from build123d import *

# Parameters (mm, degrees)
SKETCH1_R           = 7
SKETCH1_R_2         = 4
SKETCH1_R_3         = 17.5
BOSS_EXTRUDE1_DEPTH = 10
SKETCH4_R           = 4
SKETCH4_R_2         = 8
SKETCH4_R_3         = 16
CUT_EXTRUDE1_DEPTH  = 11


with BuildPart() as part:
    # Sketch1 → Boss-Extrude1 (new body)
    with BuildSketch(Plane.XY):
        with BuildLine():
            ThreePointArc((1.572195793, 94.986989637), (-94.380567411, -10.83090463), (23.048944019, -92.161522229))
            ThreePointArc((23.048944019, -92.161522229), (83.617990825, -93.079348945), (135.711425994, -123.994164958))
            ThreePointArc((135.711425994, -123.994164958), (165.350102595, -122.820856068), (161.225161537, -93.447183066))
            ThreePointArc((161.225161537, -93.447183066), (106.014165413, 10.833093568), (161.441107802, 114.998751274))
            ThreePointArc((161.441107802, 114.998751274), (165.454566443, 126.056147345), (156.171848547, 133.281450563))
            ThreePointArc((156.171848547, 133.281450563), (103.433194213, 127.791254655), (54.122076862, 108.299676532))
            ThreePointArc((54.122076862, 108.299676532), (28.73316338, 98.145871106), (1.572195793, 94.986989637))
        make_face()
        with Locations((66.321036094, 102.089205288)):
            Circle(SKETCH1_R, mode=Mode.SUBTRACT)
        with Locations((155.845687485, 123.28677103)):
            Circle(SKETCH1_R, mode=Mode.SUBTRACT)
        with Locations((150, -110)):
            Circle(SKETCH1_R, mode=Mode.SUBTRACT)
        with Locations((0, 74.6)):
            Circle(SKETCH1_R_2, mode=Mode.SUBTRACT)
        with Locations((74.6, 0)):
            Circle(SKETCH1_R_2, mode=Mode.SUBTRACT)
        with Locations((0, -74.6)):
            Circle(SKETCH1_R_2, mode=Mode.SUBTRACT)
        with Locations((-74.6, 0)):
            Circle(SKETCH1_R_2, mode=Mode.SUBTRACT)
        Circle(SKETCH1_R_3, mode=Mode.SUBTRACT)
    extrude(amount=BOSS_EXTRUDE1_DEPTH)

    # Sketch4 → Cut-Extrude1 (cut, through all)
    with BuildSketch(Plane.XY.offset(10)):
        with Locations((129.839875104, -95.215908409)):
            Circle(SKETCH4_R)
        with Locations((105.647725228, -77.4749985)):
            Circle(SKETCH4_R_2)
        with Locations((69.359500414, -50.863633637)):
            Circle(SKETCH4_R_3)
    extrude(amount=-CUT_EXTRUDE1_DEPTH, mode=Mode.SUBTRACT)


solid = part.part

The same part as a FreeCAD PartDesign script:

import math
import FreeCAD as App
import Part
import Sketcher

V = App.Vector

doc = App.newDocument("Part")
body = doc.addObject("PartDesign::Body", "Body")

# Sketch on XY plane
sketch1 = body.newObject("Sketcher::SketchObject", "Sketch")
sketch1.AttachmentSupport = (doc.getObject("XY_Plane"), [""])
sketch1.MapMode = "FlatFace"
sketch1.addGeometry([
    Part.ArcOfCircle(Part.Circle(V(0, 0, 0), V(0, 0, 1), 95), math.radians(89), math.radians(284)),  # 0
    Part.ArcOfCircle(Part.Circle(V(51.6, -206.4, 0), V(0, 0, 1), 117.7), math.radians(44), math.radians(104)),  # 1
    Part.ArcOfCircle(Part.Circle(V(150, -110, 0), V(0, 0, 1), 20), math.radians(-136), math.radians(56)),  # 2
    Part.ArcOfCircle(Part.Circle(V(231.9, 10.7, 0), V(0, 0, 1), 125.8), math.radians(124), math.radians(236)),  # 3
    Part.ArcOfCircle(Part.Circle(V(155.8, 123.3, 0), V(0, 0, 1), 10), math.radians(-56), math.radians(88)),  # 4
    Part.ArcOfCircle(Part.Circle(V(149.8, -61.7, 0), V(0, 0, 1), 195), math.radians(88), math.radians(119)),  # 5
    Part.ArcOfCircle(Part.Circle(V(3.3, 198.6, 0), V(0, 0, 1), 103.6), math.radians(-91), math.radians(-61)),  # 6
    Part.Circle(V(0, -74.6, 0), V(0, 0, 1), 4),  # 7
    Part.Circle(V(-74.6, 0, 0), V(0, 0, 1), 4),  # 8
    Part.Circle(V(0, 0, 0), V(0, 0, 1), 17.5),  # 9
    Part.Circle(V(150, -110, 0), V(0, 0, 1), 7),  # 10
    Part.Circle(V(74.6, 0, 0), V(0, 0, 1), 4),  # 11
    Part.Circle(V(0, 74.6, 0), V(0, 0, 1), 4),  # 12
    Part.Circle(V(66.3, 102.1, 0), V(0, 0, 1), 7),  # 13
    Part.Circle(V(155.8, 123.3, 0), V(0, 0, 1), 7),  # 14
], False)
sketch1.addConstraint([
    Sketcher.Constraint("Tangent", 0, 2, 1, 2),
    Sketcher.Constraint("Tangent", 1, 1, 2, 1),
    Sketcher.Constraint("Tangent", 2, 2, 3, 2),
    Sketcher.Constraint("Tangent", 3, 1, 4, 1),
    Sketcher.Constraint("Tangent", 4, 2, 5, 1),
    Sketcher.Constraint("Tangent", 5, 2, 6, 2),
    Sketcher.Constraint("Tangent", 6, 1, 0, 1),
    Sketcher.Constraint("Coincident", 0, 3, -1, 1),
    Sketcher.Constraint("Coincident", 9, 3, -1, 1),
    Sketcher.Constraint("Coincident", 10, 3, 2, 3),
    Sketcher.Constraint("Coincident", 14, 3, 4, 3),
    Sketcher.Constraint("Equal", 7, 8),
    Sketcher.Constraint("Equal", 8, 11),
    Sketcher.Constraint("Equal", 11, 12),
    Sketcher.Constraint("Equal", 10, 13),
    Sketcher.Constraint("Equal", 13, 14),
    Sketcher.Constraint("Symmetric", 8, 3, 11, 3, -1, 1),
    Sketcher.Constraint("Symmetric", 7, 3, 12, 3, -1, 1),
    Sketcher.Constraint("PointOnObject", 7, 3, -2),
    Sketcher.Constraint("PointOnObject", 8, 3, -1),
    Sketcher.Constraint("Diameter", 7, 8.0),
    Sketcher.Constraint("Diameter", 9, 35.0),
    Sketcher.Constraint("Diameter", 10, 14.0),
    Sketcher.Constraint("Radius", 0, 95.0),
    Sketcher.Constraint("Radius", 2, 20.0),
    Sketcher.Constraint("Radius", 4, 10.0),
    Sketcher.Constraint("DistanceX", -1, 1, 2, 3, 150.0),
    Sketcher.Constraint("DistanceY", 2, 3, -1, 1, 110.0),
    Sketcher.Constraint("DistanceY", 7, 3, -1, 1, 74.6),
    Sketcher.Constraint("DistanceX", 8, 3, -1, 1, 74.6),
    Sketcher.Constraint("Radius", 3, 125.839499),
    Sketcher.Constraint("Radius", 1, 117.718594),
    Sketcher.Constraint("Radius", 5, 195.043024),
    Sketcher.Constraint("Radius", 6, 103.618015),
    Sketcher.Constraint("DistanceY", 5, 3, -1, 1, 61.657802),
    Sketcher.Constraint("DistanceY", -1, 1, 4, 3, 123.286771),
    Sketcher.Constraint("DistanceX", -1, 1, 4, 2, 156.171849),
    Sketcher.Constraint("DistanceX", 13, 3, 4, 3, 89.524651),
    Sketcher.Constraint("DistanceY", 13, 3, 6, 3, 96.501609),
])
pad1 = body.newObject("PartDesign::Pad", "Pad")
pad1.Profile = sketch1
pad1.Length = 10

# Sketch on XY plane
sketch2 = body.newObject("Sketcher::SketchObject", "Sketch001")
sketch2.AttachmentSupport = (doc.getObject("XY_Plane"), [""])
sketch2.MapMode = "FlatFace"
sketch2.AttachmentOffset = App.Placement(V(0, 0, 10), App.Rotation())
sketch2.addGeometry([
    Part.Circle(V(129.8, -95.2, 0), V(0, 0, 1), 4),
    Part.Circle(V(105.6, -77.5, 0), V(0, 0, 1), 8),
    Part.Circle(V(69.4, -50.9, 0), V(0, 0, 1), 16),
], False)
sketch2.addConstraint([
    Sketcher.Constraint("Diameter", 0, 8.0),
    Sketcher.Constraint("Diameter", 1, 16.0),
    Sketcher.Constraint("Diameter", 2, 32.0),
    Sketcher.Constraint("DistanceY", 1, 3, -1, 1, 77.474998),
    Sketcher.Constraint("DistanceX", -1, 1, 2, 3, 69.3595),
    Sketcher.Constraint("DistanceY", 0, 3, -1, 1, 95.215908),
    Sketcher.Constraint("DistanceX", 1, 3, 0, 3, 24.19215),
    Sketcher.Constraint("DistanceX", -1, 1, 0, 3, 129.839875),
    Sketcher.Constraint("DistanceY", 2, 3, -1, 1, 50.863634),
])
pocket1 = body.newObject("PartDesign::Pocket", "Pocket")
pocket1.Profile = sketch2
pocket1.Type = "ThroughAll"

doc.recompute()
